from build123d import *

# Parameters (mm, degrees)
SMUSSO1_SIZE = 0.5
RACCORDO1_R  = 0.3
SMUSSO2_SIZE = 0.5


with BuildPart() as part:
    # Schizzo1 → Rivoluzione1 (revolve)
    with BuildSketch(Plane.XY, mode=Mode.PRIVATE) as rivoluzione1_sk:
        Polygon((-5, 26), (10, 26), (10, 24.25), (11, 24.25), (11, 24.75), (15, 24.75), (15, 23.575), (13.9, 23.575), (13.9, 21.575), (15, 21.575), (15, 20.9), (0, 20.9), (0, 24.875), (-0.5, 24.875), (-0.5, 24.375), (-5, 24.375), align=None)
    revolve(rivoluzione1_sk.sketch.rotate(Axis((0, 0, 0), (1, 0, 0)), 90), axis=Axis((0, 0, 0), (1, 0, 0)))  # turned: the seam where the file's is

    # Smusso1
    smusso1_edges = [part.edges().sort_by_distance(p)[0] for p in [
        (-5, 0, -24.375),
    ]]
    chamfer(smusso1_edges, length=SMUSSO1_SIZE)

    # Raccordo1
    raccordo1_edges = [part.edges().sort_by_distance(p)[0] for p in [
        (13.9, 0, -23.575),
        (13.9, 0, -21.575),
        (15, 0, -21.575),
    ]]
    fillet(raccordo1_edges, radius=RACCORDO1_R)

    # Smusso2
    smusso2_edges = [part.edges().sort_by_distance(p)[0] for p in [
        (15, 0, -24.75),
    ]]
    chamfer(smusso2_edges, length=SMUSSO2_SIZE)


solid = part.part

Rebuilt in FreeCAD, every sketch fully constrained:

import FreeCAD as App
import Part
import Sketcher
Q = App.Units.Quantity


def edges_at(feature, points):
    """Names of the edges that pass closest to the given points."""
    edges = feature.Shape.Edges
    near = lambda p: min(range(len(edges)), key=lambda i: edges[i].distToShape(Part.Vertex(*p))[0])
    return sorted({f"Edge{near(p) + 1}" for p in points})


def add_polygon(sketch, points):
    """Adds a closed chain of lines whose ends are joined by coincident constraints."""
    first, n = sketch.GeometryCount, len(points)
    for a, b in zip(points, points[1:] + points[:1]):
        sketch.addGeometry(Part.LineSegment(App.Vector(*a, 0), App.Vector(*b, 0)), False)
    for i in range(n):
        sketch.addConstraint(Sketcher.Constraint("Coincident", first + i, 2, first + (i + 1) % n, 1))

doc = App.newDocument("Part")
params = doc.addObject("Spreadsheet::Sheet", "Params")
for row, (alias, value) in enumerate([
    ("sketch1_width", "15 mm"),
    ("sketch1_width2", "4 mm"),
    ("sketch1_width3", "1 mm"),
    ("sketch1_height", "2 mm"),
    ("sketch1_width4", "4.5 mm"),
    ("revolution_angle", "360 deg"),
    ("chamfer_size", "0.5 mm"),
    ("fillet_radius", "0.3 mm"),
    ("chamfer2_size", "0.5 mm"),
], start=1):
    params.set(f"A{row}", alias)
    params.set(f"B{row}", "=" + value)
    params.setAlias(f"B{row}", alias)

body = doc.addObject("PartDesign::Body", "Body")

# Sketch on XY plane
sketch1 = body.newObject("Sketcher::SketchObject", "Sketch")
sketch1.AttachmentSupport = (doc.getObject("XY_Plane"), [""])
sketch1.MapMode = "FlatFace"
add_polygon(sketch1, [(10, 26), (-5, 26), (-5, 24.375), (-0.5, 24.375), (-0.5, 24.875), (0, 24.875), (0, 20.9), (15, 20.9), (15, 21.575), (13.9, 21.575), (13.9, 23.575), (15, 23.575), (15, 24.75), (11, 24.75), (11, 24.25), (10, 24.25)])  # lines 0-15
sketch1.addConstraint([
    Sketcher.Constraint("Horizontal", 0),
    Sketcher.Constraint("Vertical", 1),
    Sketcher.Constraint("Horizontal", 2),
    Sketcher.Constraint("Vertical", 3),
    Sketcher.Constraint("Horizontal", 4),
    Sketcher.Constraint("Vertical", 5),
    Sketcher.Constraint("Horizontal", 6),
    Sketcher.Constraint("Vertical", 7),
    Sketcher.Constraint("Horizontal", 8),
    Sketcher.Constraint("Vertical", 9),
    Sketcher.Constraint("Horizontal", 10),
    Sketcher.Constraint("Vertical", 11),
    Sketcher.Constraint("Horizontal", 12),
    Sketcher.Constraint("Vertical", 13),
    Sketcher.Constraint("Horizontal", 14),
    Sketcher.Constraint("Vertical", 15),
    Sketcher.Constraint("PointOnObject", 4, 2, -2),
    Sketcher.Constraint("Vertical", 7, 2, 10, 2),
    Sketcher.Constraint("Equal", 0, 6),
    Sketcher.Constraint("Equal", 4, 3),
    Sketcher.Constraint("Equal", 3, 13),
    Sketcher.Constraint("DistanceX", 0, 2, 0, 1, Q("15 mm")),
    Sketcher.Constraint("DistanceX", 12, 2, 12, 1, Q("4 mm")),
    Sketcher.Constraint("DistanceX", 14, 2, 14, 1, Q("1 mm")),
    Sketcher.Constraint("DistanceY", 9, 1, 9, 2, Q("2 mm")),
    Sketcher.Constraint("DistanceX", 2, 1, 2, 2, Q("4.5 mm")),
    Sketcher.Constraint("DistanceX", 8, 2, 8, 1, Q("1.1 mm")),
    Sketcher.Constraint("DistanceY", -1, 1, 0, 2, Q("26 mm")),
    Sketcher.Constraint("DistanceY", 15, 1, 15, 2, Q("1.75 mm")),
    Sketcher.Constraint("DistanceY", -1, 1, 5, 2, Q("20.9 mm")),
    Sketcher.Constraint("DistanceY", 7, 2, 4, 2, Q("3.3 mm")),
    Sketcher.Constraint("DistanceY", 1, 2, 1, 1, Q("1.625 mm")),
])
sketch1.setExpression("Constraints[37]", "Params.sketch1_width")
sketch1.setExpression("Constraints[38]", "Params.sketch1_width2")
sketch1.setExpression("Constraints[39]", "Params.sketch1_width3")
sketch1.setExpression("Constraints[40]", "Params.sketch1_height")
sketch1.setExpression("Constraints[41]", "Params.sketch1_width4")
revolution = body.newObject("PartDesign::Revolution", "Revolution")
revolution.Profile = sketch1
revolution.ReferenceAxis = (sketch1, ["H_Axis"])
revolution.setExpression("Angle", "Params.revolution_angle")
doc.recompute()

chamfer = body.newObject("PartDesign::Chamfer", "Chamfer")
chamfer.Base = (revolution, edges_at(revolution, [(-5, 0, -24.375)]))
chamfer.setExpression("Size", "Params.chamfer_size")
doc.recompute()

fillet = body.newObject("PartDesign::Fillet", "Fillet")
fillet.Base = (chamfer, edges_at(chamfer, [(13.9, 0, -23.575), (13.9, 0, -21.575), (15, 0, -21.575)]))
fillet.setExpression("Radius", "Params.fillet_radius")
doc.recompute()

chamfer2 = body.newObject("PartDesign::Chamfer", "Chamfer001")
chamfer2.Base = (fillet, edges_at(fillet, [(15, 0, -24.75)]))
chamfer2.setExpression("Size", "Params.chamfer2_size")

doc.recompute()
